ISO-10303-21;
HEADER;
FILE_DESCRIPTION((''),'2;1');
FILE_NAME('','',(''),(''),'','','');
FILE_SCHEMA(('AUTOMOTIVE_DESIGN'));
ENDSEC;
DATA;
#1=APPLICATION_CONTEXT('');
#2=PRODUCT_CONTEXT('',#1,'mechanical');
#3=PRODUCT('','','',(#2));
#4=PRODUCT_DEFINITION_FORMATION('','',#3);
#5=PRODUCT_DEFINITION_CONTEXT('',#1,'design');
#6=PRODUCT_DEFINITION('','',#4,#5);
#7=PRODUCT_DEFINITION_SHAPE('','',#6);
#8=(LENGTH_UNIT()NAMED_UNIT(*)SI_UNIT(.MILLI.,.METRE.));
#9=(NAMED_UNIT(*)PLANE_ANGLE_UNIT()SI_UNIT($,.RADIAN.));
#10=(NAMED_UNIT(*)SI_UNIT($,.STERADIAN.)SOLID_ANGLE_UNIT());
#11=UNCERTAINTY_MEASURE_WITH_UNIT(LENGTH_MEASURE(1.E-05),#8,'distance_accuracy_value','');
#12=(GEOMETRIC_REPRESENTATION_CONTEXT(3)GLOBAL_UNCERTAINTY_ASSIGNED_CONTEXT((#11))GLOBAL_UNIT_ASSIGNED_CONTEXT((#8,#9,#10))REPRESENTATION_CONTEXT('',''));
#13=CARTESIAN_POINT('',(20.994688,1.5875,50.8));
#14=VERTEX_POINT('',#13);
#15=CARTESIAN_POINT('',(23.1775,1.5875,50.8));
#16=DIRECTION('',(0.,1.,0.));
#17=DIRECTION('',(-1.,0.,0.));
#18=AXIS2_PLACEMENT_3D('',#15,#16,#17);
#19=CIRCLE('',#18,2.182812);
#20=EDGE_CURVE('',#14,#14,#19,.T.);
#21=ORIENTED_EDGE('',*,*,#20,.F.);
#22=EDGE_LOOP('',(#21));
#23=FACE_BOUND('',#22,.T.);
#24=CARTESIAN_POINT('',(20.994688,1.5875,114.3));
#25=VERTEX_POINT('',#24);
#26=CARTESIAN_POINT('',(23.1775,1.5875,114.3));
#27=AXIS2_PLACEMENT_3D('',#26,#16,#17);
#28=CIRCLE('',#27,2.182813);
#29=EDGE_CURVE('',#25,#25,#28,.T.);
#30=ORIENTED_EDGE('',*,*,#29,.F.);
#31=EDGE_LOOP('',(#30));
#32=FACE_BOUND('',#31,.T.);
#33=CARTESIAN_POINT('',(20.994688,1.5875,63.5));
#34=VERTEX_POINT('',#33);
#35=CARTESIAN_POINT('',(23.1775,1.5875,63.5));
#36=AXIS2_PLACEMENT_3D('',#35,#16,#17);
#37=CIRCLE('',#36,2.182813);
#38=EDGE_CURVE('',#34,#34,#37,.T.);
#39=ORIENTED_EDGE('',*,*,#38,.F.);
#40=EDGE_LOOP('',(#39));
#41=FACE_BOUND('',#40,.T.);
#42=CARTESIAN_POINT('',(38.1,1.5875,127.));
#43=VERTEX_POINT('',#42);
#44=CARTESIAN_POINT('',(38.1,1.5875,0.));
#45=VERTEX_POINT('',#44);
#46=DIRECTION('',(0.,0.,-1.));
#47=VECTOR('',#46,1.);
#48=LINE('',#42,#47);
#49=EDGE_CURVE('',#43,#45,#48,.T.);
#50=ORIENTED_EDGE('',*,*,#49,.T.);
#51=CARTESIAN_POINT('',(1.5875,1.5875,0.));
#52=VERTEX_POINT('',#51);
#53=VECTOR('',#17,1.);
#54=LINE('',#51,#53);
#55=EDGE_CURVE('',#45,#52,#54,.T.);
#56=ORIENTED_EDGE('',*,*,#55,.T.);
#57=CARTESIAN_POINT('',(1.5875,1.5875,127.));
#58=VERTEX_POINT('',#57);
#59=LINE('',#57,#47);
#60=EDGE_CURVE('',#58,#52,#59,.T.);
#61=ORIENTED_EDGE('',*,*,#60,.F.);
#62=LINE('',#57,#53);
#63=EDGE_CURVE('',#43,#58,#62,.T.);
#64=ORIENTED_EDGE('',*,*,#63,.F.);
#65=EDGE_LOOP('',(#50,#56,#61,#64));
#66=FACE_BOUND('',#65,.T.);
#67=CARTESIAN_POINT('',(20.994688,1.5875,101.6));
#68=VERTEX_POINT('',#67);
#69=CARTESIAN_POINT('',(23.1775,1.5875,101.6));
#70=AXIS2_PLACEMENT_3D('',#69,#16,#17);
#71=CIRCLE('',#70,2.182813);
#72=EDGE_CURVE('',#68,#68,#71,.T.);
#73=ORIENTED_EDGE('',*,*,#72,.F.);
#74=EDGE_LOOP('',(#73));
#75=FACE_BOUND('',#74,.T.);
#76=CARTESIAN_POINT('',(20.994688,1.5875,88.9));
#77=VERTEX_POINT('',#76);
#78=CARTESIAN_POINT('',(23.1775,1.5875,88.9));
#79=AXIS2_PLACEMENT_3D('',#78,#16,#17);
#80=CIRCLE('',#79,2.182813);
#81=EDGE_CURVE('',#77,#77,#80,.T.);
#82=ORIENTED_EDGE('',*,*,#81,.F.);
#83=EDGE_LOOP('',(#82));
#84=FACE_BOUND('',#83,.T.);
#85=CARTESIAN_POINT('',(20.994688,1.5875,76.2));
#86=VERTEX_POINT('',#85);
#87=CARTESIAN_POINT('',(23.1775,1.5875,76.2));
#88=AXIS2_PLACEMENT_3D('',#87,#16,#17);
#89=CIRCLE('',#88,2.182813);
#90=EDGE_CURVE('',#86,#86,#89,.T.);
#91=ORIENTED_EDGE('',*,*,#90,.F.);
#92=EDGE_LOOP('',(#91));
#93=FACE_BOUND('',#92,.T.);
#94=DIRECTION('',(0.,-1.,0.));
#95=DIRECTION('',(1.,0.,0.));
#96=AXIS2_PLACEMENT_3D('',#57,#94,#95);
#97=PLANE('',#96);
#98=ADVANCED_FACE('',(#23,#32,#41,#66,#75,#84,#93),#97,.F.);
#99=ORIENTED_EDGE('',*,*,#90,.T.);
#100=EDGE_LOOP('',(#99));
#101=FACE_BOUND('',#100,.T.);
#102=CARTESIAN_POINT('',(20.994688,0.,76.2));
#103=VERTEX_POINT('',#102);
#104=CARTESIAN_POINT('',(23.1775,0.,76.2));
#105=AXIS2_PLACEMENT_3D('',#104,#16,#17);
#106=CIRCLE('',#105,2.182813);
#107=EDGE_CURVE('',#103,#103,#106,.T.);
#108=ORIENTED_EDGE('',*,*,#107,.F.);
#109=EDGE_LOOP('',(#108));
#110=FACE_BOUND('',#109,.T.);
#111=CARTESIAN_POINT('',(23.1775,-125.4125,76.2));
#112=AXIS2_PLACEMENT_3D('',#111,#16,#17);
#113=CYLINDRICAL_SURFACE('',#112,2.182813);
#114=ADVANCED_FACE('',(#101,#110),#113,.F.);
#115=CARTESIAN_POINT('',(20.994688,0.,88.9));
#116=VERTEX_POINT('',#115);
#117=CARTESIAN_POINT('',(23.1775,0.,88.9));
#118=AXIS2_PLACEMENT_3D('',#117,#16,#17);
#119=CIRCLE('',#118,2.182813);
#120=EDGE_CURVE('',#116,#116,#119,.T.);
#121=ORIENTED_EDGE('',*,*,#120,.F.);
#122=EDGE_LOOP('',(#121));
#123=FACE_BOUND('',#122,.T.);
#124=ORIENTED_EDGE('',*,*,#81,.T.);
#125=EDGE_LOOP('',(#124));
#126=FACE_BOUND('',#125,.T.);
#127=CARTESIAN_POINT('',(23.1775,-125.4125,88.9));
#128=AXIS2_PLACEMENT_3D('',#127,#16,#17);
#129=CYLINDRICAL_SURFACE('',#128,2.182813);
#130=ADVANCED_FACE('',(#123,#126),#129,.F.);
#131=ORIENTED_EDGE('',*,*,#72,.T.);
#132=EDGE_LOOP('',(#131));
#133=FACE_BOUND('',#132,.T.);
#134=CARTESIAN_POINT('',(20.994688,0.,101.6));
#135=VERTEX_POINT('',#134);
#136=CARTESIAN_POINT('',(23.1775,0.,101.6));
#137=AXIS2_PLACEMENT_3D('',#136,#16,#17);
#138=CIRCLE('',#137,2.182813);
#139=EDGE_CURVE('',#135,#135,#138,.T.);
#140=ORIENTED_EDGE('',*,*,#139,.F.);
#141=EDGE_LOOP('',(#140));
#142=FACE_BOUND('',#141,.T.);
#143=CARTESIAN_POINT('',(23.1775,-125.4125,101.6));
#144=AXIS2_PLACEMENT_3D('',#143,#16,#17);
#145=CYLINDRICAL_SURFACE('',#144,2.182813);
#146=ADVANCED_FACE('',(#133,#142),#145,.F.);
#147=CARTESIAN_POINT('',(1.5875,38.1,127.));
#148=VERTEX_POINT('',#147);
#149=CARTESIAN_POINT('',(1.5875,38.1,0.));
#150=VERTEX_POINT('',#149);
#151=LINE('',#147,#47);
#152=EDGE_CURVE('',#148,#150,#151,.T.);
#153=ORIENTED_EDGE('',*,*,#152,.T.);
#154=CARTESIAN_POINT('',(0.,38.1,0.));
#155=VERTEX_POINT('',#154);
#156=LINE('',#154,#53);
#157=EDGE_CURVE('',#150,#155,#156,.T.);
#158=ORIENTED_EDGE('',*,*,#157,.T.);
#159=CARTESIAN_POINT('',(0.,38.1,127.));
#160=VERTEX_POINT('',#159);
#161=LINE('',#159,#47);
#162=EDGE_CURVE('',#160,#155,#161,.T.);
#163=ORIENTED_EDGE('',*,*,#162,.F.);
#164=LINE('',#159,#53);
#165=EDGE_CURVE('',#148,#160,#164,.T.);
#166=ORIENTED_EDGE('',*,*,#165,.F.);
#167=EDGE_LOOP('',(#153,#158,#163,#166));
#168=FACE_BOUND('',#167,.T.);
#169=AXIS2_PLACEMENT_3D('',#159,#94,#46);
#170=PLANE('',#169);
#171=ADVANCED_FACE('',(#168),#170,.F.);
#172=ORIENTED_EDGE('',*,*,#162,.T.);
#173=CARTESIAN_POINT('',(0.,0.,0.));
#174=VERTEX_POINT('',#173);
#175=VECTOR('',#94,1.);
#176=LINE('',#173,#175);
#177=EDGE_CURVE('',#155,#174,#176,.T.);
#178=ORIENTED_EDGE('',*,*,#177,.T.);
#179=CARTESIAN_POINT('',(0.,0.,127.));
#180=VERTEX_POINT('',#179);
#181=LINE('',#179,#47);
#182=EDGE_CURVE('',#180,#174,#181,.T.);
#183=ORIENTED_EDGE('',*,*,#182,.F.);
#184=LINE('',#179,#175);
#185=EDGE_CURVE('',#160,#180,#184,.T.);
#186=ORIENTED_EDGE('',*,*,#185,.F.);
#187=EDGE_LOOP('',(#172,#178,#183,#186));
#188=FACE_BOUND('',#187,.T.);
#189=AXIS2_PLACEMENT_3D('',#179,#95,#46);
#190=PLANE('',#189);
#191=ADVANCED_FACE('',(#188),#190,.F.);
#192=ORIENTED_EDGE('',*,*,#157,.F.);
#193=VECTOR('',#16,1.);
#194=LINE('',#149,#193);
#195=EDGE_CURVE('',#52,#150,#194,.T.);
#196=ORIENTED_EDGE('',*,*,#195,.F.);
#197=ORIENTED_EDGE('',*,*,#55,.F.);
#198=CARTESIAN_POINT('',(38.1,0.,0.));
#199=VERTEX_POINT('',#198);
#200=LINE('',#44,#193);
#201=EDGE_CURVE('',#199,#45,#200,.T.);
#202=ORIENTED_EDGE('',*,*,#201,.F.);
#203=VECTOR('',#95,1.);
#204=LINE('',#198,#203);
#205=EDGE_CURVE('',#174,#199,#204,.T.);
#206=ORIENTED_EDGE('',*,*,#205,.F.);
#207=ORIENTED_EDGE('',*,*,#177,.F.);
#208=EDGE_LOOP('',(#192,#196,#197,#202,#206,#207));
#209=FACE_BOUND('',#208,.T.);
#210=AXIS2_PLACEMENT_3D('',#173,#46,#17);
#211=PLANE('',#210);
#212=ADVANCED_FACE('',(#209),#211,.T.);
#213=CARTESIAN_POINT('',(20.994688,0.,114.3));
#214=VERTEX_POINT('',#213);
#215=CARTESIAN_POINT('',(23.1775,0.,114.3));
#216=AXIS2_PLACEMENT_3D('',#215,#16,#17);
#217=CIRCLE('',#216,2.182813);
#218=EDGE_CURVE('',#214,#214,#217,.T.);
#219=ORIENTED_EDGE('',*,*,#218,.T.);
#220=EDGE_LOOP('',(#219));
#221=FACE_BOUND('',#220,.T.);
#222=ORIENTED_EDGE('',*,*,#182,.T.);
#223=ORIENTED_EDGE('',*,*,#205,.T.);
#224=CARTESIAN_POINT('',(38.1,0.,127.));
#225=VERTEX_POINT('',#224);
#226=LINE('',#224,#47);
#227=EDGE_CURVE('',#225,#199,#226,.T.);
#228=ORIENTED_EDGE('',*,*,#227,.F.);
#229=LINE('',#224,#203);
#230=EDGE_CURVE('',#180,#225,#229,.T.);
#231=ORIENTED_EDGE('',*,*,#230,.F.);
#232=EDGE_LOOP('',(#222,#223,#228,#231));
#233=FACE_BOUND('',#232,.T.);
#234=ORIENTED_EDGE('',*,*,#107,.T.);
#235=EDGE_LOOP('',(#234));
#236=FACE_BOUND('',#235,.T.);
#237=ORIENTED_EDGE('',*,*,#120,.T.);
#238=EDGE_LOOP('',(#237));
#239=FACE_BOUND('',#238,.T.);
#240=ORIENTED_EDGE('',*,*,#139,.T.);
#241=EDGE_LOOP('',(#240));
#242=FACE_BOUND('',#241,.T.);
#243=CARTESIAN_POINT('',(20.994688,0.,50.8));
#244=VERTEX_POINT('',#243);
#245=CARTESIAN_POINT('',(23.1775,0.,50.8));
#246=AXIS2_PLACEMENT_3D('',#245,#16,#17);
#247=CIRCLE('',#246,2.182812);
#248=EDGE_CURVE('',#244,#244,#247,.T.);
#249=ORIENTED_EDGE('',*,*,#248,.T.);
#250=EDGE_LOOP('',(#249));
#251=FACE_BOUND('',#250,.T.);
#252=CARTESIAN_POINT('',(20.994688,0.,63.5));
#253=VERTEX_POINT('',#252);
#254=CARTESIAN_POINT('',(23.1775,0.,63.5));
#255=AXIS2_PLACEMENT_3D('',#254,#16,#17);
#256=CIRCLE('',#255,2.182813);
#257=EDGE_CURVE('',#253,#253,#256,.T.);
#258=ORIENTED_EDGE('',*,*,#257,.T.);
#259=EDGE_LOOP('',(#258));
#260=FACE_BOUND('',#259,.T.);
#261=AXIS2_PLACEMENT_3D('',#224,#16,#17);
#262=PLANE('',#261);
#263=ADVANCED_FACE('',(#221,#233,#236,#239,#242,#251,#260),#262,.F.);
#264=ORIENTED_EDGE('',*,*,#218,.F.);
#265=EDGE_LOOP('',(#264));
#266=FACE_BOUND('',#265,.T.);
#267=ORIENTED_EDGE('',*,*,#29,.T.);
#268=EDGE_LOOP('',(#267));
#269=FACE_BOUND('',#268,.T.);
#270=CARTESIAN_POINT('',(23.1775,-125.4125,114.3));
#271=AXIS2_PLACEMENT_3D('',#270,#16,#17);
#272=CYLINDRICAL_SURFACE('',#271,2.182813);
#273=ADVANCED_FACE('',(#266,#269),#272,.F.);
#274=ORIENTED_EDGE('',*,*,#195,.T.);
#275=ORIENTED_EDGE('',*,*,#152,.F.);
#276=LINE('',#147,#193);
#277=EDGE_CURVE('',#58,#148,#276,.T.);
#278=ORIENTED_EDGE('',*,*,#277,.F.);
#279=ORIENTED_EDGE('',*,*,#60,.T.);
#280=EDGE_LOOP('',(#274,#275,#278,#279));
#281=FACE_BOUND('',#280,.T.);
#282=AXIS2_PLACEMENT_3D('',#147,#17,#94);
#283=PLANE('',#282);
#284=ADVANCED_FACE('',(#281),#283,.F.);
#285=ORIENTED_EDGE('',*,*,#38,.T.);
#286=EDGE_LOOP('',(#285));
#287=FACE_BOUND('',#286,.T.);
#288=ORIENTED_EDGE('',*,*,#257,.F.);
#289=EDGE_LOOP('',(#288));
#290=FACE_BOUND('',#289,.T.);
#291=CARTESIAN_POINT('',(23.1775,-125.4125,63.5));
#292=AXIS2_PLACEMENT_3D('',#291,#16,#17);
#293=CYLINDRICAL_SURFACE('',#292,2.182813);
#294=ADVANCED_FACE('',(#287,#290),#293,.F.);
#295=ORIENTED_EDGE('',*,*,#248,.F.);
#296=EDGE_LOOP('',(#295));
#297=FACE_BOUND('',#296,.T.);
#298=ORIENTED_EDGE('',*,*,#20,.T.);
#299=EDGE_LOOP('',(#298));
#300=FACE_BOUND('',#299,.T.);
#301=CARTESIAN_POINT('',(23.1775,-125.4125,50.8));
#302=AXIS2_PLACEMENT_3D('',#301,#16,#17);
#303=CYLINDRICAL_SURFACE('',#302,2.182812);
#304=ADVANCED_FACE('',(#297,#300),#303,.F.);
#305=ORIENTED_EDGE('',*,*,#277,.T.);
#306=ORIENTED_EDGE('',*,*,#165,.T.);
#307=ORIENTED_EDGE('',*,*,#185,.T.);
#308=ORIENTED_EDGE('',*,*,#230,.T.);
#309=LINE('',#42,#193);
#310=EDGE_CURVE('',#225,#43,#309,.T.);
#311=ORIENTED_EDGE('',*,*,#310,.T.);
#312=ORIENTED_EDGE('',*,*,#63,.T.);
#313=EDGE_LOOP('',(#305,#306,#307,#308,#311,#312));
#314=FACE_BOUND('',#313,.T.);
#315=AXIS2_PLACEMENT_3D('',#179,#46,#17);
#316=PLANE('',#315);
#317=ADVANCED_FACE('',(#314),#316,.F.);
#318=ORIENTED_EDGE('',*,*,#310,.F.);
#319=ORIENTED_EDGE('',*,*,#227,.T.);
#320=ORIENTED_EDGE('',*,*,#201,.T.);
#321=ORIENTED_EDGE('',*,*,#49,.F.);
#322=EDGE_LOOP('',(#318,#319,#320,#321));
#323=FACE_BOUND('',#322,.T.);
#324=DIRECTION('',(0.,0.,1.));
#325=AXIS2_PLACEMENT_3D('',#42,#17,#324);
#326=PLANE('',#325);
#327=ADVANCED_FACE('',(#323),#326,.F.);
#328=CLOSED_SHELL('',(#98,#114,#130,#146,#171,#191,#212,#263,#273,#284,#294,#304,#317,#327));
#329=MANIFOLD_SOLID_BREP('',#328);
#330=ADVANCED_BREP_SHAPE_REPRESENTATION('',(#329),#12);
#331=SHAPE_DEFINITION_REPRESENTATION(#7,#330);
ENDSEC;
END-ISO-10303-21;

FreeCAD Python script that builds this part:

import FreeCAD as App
import Part
import Sketcher
from FreeCAD import Vector
Q = App.Units.Quantity


def add_polygon(sketch, points):
    """Adds a closed chain of lines whose ends are joined by coincident constraints."""
    first, n = sketch.GeometryCount, len(points)
    for a, b in zip(points, points[1:] + points[:1]):
        sketch.addGeometry(Part.LineSegment(App.Vector(*a, 0), App.Vector(*b, 0)), False)
    for i in range(n):
        sketch.addConstraint(Sketcher.Constraint("Coincident", first + i, 2, first + (i + 1) % n, 1))

doc = App.newDocument("Part")
params = doc.addObject("Spreadsheet::Sheet", "Params")
for row, (alias, value) in enumerate([
    ("sketch1_width", "1.5 in"),
    ("sketch1_width2", "1.4375 in"),
    ("pad1_length", "5 in"),
    ("sketch2_diameter", "0.171875 in"),
    ("pocket1_length", "5 in"),
], start=1):
    params.set(f"A{row}", alias)
    params.set(f"B{row}", "=" + value)
    params.setAlias(f"B{row}", alias)

body = doc.addObject("PartDesign::Body", "Body")

sketch1 = body.newObject("Sketcher::SketchObject", "Sketch")
sketch1.AttachmentSupport = (doc.getObject("XY_Plane"), [""])
sketch1.MapMode = "FlatFace"
add_polygon(sketch1, [(0, 38.1), (0, 0), (38.1, 0), (38.1, 1.6), (1.6, 1.6), (1.6, 38.1)])
sketch1.addConstraint(Sketcher.Constraint("Vertical", 0))
sketch1.addConstraint(Sketcher.Constraint("Horizontal", 1))
sketch1.addConstraint(Sketcher.Constraint("Vertical", 2))
sketch1.addConstraint(Sketcher.Constraint("Horizontal", 3))
sketch1.addConstraint(Sketcher.Constraint("Vertical", 4))
sketch1.addConstraint(Sketcher.Constraint("Horizontal", 5))
sketch1.addConstraint(Sketcher.Constraint("Coincident", 0, 2, -1, 1))
sketch1.addConstraint(Sketcher.Constraint("Equal", 1, 0))
sketch1.addConstraint(Sketcher.Constraint("Equal", 5, 2))
sketch1.addConstraint(Sketcher.Constraint("DistanceX", 1, 1, 1, 2, Q("1.5 in")))
sketch1.addConstraint(Sketcher.Constraint("DistanceX", 3, 2, 3, 1, Q("1.4375 in")))
sketch1.setExpression("Constraints[15]", "Params.sketch1_width")
sketch1.setExpression("Constraints[16]", "Params.sketch1_width2")
pad1 = body.newObject("PartDesign::Pad", "Pad")
pad1.Profile = sketch1
pad1.setExpression("Length", "Params.pad1_length")

sketch2 = body.newObject("Sketcher::SketchObject", "Sketch001")
sketch2.AttachmentSupport = (doc.getObject("XZ_Plane"), [""])
sketch2.MapMode = "FlatFace"
sketch2.AttachmentOffset = App.Placement(Vector(0, 0, -0.0625 * 25.4), App.Rotation())
sketch2.addGeometry(Part.Circle(Vector(23.2, 114.3, 0), Vector(0, 0, 1), 2.2), False)
sketch2.addGeometry(Part.Circle(Vector(23.2, 101.6, 0), Vector(0, 0, 1), 2.2), False)
sketch2.addGeometry(Part.Circle(Vector(23.2, 88.9, 0), Vector(0, 0, 1), 2.2), False)
sketch2.addGeometry(Part.Circle(Vector(23.2, 76.2, 0), Vector(0, 0, 1), 2.2), False)
sketch2.addGeometry(Part.Circle(Vector(23.2, 63.5, 0), Vector(0, 0, 1), 2.2), False)
sketch2.addGeometry(Part.Circle(Vector(23.2, 50.8, 0), Vector(0, 0, 1), 2.2), False)
sketch2.addConstraint(Sketcher.Constraint("Equal", 0, 1))
sketch2.addConstraint(Sketcher.Constraint("Equal", 1, 2))
sketch2.addConstraint(Sketcher.Constraint("Equal", 2, 3))
sketch2.addConstraint(Sketcher.Constraint("Equal", 3, 4))
sketch2.addConstraint(Sketcher.Constraint("Equal", 4, 5))
sketch2.addConstraint(Sketcher.Constraint("Vertical", 0, 3, 1, 3))
sketch2.addConstraint(Sketcher.Constraint("Vertical", 1, 3, 2, 3))
sketch2.addConstraint(Sketcher.Constraint("Vertical", 2, 3, 3, 3))
sketch2.addConstraint(Sketcher.Constraint("Vertical", 3, 3, 4, 3))
sketch2.addConstraint(Sketcher.Constraint("Vertical", 4, 3, 5, 3))
sketch2.addConstraint(Sketcher.Constraint("Diameter", 0, Q("0.171875 in")))
sketch2.addConstraint(Sketcher.Constraint("DistanceY", -1, 1, 1, 3, Q("4 in")))
sketch2.addConstraint(Sketcher.Constraint("DistanceY", -1, 1, 3, 3, Q("3 in")))
sketch2.addConstraint(Sketcher.Constraint("DistanceY", -1, 1, 5, 3, Q("2 in")))
sketch2.addConstraint(Sketcher.Constraint("DistanceY", 2, 3, 0, 3, Q("1 in")))
sketch2.addConstraint(Sketcher.Constraint("DistanceY", 4, 3, 2, 3, Q("1 in")))
sketch2.addConstraint(Sketcher.Constraint("DistanceY", -1, 1, 0, 3, Q("4.5 in")))
sketch2.addConstraint(Sketcher.Constraint("DistanceX", -1, 1, 0, 3, Q("0.9125 in")))
sketch2.setExpression("Constraints[10]", "Params.sketch2_diameter")
pocket1 = body.newObject("PartDesign::Pocket", "Pocket")
pocket1.Profile = sketch2
pocket1.setExpression("Length", "Params.pocket1_length")
pocket1.Reversed = True

doc.recompute()
